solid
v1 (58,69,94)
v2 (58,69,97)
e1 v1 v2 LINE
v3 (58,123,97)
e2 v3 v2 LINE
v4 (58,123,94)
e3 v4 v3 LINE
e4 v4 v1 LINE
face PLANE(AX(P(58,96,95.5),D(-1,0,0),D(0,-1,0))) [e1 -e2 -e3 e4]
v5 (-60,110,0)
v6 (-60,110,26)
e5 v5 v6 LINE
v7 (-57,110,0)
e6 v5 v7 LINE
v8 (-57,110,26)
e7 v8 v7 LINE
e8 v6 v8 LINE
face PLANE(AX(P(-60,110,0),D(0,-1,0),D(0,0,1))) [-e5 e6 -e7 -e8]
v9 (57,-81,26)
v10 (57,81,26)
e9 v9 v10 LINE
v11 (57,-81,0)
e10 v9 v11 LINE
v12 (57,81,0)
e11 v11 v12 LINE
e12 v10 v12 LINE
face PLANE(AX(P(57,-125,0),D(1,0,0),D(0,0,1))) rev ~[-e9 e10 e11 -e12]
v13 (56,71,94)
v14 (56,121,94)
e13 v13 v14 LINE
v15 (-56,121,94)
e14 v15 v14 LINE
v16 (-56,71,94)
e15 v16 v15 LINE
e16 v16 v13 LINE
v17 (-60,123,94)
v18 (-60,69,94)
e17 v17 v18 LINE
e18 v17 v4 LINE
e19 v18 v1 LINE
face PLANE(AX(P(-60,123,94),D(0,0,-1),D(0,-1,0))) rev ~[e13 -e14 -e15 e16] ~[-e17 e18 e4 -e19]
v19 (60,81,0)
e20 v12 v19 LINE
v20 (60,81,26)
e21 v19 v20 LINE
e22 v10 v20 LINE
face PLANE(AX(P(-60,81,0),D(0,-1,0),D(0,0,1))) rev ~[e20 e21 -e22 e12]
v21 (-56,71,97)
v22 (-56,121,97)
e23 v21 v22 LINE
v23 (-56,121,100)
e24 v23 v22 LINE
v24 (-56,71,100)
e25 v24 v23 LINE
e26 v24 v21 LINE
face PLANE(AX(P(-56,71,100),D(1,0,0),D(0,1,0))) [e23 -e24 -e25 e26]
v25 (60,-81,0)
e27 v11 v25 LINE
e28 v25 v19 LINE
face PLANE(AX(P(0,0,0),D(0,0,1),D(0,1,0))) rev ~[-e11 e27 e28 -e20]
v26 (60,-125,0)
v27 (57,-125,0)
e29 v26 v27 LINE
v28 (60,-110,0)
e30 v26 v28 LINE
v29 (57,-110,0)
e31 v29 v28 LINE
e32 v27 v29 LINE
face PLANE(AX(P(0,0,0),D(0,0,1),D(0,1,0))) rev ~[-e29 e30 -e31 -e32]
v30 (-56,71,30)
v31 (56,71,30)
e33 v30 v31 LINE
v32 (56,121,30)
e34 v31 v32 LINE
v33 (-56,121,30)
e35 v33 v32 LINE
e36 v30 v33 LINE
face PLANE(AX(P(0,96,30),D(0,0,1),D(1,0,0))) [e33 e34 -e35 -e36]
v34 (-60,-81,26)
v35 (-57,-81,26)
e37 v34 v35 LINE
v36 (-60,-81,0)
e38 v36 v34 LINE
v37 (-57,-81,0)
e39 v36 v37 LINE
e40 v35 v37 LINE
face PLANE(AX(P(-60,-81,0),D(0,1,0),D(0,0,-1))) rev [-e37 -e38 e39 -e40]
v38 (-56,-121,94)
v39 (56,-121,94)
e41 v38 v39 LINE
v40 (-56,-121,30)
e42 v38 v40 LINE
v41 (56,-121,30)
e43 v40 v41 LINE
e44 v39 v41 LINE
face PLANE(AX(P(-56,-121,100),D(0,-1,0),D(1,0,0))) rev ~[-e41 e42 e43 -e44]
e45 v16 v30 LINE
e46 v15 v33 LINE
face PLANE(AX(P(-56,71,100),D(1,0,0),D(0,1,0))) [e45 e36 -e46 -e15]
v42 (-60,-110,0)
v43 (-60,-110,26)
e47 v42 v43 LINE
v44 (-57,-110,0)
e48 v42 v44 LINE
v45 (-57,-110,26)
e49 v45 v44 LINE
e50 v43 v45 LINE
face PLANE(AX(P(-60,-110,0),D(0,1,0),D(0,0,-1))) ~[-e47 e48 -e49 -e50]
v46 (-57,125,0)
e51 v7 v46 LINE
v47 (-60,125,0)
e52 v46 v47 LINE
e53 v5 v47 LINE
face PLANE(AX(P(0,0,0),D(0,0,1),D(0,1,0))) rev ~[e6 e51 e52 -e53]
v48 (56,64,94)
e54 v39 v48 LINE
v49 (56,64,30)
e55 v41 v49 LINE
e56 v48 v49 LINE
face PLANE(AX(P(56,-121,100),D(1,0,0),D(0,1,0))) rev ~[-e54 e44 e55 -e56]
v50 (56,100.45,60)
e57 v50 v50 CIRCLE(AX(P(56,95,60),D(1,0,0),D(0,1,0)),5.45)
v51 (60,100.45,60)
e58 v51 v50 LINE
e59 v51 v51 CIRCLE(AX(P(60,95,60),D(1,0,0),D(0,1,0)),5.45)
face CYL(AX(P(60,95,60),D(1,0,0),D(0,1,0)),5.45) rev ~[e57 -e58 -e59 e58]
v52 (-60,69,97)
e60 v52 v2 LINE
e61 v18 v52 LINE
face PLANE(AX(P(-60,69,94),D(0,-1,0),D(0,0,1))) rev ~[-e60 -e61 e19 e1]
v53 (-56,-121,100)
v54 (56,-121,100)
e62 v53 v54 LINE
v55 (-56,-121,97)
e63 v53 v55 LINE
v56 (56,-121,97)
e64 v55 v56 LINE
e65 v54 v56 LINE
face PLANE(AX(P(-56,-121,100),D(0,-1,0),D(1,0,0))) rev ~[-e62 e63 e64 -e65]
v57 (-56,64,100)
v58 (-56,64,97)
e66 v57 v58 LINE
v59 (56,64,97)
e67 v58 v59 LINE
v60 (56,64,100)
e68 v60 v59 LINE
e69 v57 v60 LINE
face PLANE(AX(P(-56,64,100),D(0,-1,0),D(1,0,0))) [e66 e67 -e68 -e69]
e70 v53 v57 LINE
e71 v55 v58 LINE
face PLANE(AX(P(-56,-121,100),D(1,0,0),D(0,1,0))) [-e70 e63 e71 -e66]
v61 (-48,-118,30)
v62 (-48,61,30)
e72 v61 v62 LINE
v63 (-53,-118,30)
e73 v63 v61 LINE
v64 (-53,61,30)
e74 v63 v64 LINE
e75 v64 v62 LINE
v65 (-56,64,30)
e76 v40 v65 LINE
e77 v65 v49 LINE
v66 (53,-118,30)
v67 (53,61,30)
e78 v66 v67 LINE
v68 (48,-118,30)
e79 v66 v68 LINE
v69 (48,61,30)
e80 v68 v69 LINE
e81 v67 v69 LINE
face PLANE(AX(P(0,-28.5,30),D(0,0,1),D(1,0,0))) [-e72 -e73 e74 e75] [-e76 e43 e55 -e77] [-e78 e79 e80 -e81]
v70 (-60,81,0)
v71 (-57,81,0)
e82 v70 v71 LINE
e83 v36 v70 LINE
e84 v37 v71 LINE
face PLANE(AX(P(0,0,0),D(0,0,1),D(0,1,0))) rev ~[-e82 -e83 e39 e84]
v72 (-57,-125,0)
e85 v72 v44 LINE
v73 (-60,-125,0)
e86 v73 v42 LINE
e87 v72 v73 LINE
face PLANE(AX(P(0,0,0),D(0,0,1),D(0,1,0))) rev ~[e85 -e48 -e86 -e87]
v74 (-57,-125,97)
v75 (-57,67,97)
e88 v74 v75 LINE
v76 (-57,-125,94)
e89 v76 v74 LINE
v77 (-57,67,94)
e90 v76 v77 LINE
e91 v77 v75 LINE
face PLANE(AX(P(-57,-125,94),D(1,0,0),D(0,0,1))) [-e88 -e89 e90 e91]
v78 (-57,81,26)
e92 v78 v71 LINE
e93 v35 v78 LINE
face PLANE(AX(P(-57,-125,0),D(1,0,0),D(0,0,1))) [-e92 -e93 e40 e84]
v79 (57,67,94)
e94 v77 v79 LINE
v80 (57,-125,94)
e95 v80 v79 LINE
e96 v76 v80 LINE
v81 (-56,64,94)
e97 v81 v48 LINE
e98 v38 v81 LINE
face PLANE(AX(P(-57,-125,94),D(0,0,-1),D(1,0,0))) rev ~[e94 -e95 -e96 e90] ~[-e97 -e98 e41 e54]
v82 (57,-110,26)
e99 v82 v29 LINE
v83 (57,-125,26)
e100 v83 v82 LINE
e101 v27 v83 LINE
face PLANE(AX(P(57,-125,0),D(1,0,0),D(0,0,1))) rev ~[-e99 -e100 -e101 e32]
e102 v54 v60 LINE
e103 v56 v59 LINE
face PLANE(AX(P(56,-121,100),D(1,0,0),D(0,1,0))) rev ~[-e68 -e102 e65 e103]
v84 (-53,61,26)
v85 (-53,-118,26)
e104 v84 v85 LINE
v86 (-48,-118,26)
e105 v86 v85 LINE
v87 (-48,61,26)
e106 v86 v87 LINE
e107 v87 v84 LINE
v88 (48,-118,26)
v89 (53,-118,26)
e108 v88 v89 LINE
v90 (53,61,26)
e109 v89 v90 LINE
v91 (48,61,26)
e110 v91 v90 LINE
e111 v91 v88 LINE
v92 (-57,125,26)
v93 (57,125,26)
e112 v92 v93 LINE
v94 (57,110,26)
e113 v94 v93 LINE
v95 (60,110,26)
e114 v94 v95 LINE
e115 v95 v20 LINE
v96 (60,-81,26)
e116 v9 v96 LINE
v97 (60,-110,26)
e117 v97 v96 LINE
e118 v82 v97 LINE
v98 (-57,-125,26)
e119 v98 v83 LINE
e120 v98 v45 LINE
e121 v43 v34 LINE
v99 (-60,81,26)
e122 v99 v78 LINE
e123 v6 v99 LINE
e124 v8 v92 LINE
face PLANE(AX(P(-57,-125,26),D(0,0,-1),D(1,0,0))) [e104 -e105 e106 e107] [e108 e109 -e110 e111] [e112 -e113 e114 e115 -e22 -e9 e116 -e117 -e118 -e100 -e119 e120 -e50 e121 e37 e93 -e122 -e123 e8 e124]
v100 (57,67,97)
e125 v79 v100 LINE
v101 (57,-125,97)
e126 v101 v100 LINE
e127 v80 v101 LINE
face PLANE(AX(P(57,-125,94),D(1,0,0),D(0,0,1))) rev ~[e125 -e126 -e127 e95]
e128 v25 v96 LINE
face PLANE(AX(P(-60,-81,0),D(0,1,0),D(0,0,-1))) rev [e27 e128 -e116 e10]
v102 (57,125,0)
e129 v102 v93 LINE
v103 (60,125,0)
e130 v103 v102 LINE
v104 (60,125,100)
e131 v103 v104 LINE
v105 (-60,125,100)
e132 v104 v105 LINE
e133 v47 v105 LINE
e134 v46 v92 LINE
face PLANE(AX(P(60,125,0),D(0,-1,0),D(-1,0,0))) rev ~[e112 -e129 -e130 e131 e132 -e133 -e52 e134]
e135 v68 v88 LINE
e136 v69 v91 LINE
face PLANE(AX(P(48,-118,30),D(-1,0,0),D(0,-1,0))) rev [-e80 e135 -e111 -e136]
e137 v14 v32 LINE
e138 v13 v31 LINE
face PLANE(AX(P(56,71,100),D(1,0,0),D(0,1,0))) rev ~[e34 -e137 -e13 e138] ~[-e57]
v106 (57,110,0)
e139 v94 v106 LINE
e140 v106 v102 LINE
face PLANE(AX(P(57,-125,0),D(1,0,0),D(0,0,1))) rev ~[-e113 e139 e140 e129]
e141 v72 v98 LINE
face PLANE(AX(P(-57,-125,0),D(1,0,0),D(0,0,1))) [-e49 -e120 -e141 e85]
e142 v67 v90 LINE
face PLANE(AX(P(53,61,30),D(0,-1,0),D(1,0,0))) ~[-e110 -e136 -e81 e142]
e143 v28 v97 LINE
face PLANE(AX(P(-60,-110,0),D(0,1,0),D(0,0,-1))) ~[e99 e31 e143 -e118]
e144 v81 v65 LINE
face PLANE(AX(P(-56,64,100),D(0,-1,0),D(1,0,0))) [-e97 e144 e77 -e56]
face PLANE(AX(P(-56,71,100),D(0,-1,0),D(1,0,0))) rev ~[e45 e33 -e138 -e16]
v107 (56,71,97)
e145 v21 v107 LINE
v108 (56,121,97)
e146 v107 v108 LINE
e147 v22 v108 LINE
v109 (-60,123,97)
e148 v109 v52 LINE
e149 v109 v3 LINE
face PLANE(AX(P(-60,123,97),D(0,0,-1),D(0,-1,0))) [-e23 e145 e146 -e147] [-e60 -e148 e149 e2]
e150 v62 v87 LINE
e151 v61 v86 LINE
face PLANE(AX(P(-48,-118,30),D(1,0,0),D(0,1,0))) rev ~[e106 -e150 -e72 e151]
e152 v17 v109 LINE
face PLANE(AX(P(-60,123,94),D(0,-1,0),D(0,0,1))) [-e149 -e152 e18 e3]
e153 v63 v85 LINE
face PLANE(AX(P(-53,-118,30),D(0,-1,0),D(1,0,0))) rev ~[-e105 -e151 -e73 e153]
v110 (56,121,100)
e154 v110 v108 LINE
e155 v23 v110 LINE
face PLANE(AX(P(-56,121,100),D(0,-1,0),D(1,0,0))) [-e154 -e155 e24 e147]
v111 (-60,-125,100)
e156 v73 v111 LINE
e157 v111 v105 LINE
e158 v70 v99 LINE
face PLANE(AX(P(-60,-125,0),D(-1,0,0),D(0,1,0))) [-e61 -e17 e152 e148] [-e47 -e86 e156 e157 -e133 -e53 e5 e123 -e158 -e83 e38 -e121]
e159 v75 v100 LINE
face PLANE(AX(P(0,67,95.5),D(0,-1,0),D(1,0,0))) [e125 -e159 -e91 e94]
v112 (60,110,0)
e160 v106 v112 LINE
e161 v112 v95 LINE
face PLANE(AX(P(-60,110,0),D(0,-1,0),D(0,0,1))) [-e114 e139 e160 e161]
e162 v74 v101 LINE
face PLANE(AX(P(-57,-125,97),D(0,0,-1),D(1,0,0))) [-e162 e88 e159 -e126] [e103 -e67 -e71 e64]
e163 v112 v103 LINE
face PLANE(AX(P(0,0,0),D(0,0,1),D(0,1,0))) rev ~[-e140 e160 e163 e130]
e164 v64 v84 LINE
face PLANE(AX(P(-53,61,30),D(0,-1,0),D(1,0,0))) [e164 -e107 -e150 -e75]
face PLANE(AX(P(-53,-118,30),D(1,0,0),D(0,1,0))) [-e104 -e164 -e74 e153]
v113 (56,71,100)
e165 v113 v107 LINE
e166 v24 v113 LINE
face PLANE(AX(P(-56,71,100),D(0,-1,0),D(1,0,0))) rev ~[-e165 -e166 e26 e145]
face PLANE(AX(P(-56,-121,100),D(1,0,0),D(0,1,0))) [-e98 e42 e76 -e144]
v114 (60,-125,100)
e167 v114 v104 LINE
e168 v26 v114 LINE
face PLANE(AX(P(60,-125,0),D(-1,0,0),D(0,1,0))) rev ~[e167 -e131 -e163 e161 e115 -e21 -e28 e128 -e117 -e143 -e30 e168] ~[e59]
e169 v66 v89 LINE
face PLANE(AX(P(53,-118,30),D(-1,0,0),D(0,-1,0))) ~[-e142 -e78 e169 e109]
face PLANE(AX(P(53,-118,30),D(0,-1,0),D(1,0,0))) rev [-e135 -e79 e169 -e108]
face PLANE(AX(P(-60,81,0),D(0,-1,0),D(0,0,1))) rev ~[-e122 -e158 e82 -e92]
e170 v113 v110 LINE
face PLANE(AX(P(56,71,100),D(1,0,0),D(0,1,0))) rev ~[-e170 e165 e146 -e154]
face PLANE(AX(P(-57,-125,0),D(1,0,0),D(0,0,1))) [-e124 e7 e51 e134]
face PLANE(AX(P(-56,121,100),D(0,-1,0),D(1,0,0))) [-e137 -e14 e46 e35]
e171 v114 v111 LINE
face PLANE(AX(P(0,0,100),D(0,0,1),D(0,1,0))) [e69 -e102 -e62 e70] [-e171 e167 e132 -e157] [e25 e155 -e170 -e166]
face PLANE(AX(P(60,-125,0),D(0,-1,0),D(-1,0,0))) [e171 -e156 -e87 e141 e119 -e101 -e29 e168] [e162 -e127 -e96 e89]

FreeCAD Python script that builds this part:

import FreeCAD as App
import Part
import Sketcher
Q = App.Units.Quantity


def add_polygon(sketch, points):
    """Adds a closed chain of lines whose ends are joined by coincident constraints."""
    first, n = sketch.GeometryCount, len(points)
    for a, b in zip(points, points[1:] + points[:1]):
        sketch.addGeometry(Part.LineSegment(App.Vector(*a, 0), App.Vector(*b, 0)), False)
    for i in range(n):
        sketch.addConstraint(Sketcher.Constraint("Coincident", first + i, 2, first + (i + 1) % n, 1))

doc = App.newDocument("Part")
body = doc.addObject("PartDesign::Body", "Body")

# Sketch on XY plane
sketch1 = body.newObject("Sketcher::SketchObject", "Sketch")
sketch1.AttachmentSupport = (doc.getObject("XY_Plane"), [""])
sketch1.MapMode = "FlatFace"
add_polygon(sketch1, [(-60, -125), (60, -125), (60, 125), (-60, 125)])  # lines 0-3
sketch1.addConstraint([
    Sketcher.Constraint("Horizontal", 0),
    Sketcher.Constraint("Vertical", 1),
    Sketcher.Constraint("Horizontal", 2),
    Sketcher.Constraint("Vertical", 3),
    Sketcher.Constraint("Symmetric", 0, 2, 2, 2, -1, 1),
    Sketcher.Constraint("DistanceX", 0, 1, 0, 2, Q("120 mm")),
    Sketcher.Constraint("DistanceY", 1, 1, 1, 2, Q("250 mm")),
])
pad1 = body.newObject("PartDesign::Pad", "Pad")
pad1.Profile = sketch1
pad1.Length = 100

# Sketch on XY plane
sketch2 = body.newObject("Sketcher::SketchObject", "Sketch001")
sketch2.AttachmentSupport = (doc.getObject("XY_Plane"), [""])
sketch2.MapMode = "FlatFace"
sketch2.AttachmentOffset = App.Placement(App.Vector(0, 0, 100), App.Rotation())
add_polygon(sketch2, [(-56, 121), (-56, 71), (56, 71), (56, 121)])  # lines 0-3
sketch2.addConstraint([
    Sketcher.Constraint("Vertical", 0),
    Sketcher.Constraint("Horizontal", 1),
    Sketcher.Constraint("Vertical", 2),
    Sketcher.Constraint("Horizontal", 3),
    Sketcher.Constraint("DistanceX", 1, 1, 1, 2, Q("112 mm")),
    Sketcher.Constraint("DistanceY", 0, 2, 0, 1, Q("50 mm")),
    Sketcher.Constraint("DistanceX", 0, 2, -1, 1, Q("56 mm")),
    Sketcher.Constraint("DistanceY", -1, 1, 0, 2, Q("71 mm")),
])
pocket1 = body.newObject("PartDesign::Pocket", "Pocket")
pocket1.Profile = sketch2
pocket1.Length = 70

# Sketch on YZ plane
sketch3 = body.newObject("Sketcher::SketchObject", "Sketch002")
sketch3.AttachmentSupport = (doc.getObject("YZ_Plane"), [""])
sketch3.MapMode = "FlatFace"
sketch3.AttachmentOffset = App.Placement(App.Vector(0, 0, -60), App.Rotation())
add_polygon(sketch3, [(123, 97), (123, 94), (69, 94), (69, 97)])  # lines 0-3
sketch3.addConstraint([
    Sketcher.Constraint("Vertical", 0),
    Sketcher.Constraint("Horizontal", 1),
    Sketcher.Constraint("Vertical", 2),
    Sketcher.Constraint("Horizontal", 3),
    Sketcher.Constraint("DistanceX", 1, 2, 1, 1, Q("54 mm")),
    Sketcher.Constraint("DistanceY", 0, 2, 0, 1, Q("3 mm")),
    Sketcher.Constraint("DistanceX", -1, 1, 0, 2, Q("123 mm")),
    Sketcher.Constraint("DistanceY", -1, 1, 0, 2, Q("94 mm")),
])
pocket2 = body.newObject("PartDesign::Pocket", "Pocket001")
pocket2.Profile = sketch3
pocket2.Length = 118
pocket2.Reversed = True

# Sketch on XY plane
sketch4 = body.newObject("Sketcher::SketchObject", "Sketch003")
sketch4.AttachmentSupport = (doc.getObject("XY_Plane"), [""])
sketch4.MapMode = "FlatFace"
sketch4.AttachmentOffset = App.Placement(App.Vector(0, 0, 100), App.Rotation())
add_polygon(sketch4, [(-56, 64), (-56, -121), (56, -121), (56, 64)])  # lines 0-3
sketch4.addConstraint([
    Sketcher.Constraint("Vertical", 0),
    Sketcher.Constraint("Horizontal", 1),
    Sketcher.Constraint("Vertical", 2),
    Sketcher.Constraint("Horizontal", 3),
    Sketcher.Constraint("DistanceX", 1, 1, 1, 2, Q("112 mm")),
    Sketcher.Constraint("DistanceY", 0, 2, 0, 1, Q("185 mm")),
    Sketcher.Constraint("DistanceX", 0, 2, -1, 1, Q("56 mm")),
    Sketcher.Constraint("DistanceY", 0, 2, -1, 1, Q("121 mm")),
])
pocket3 = body.newObject("PartDesign::Pocket", "Pocket002")
pocket3.Profile = sketch4
pocket3.Length = 70

# Sketch on XZ plane
sketch5 = body.newObject("Sketcher::SketchObject", "Sketch004")
sketch5.AttachmentSupport = (doc.getObject("XZ_Plane"), [""])
sketch5.MapMode = "FlatFace"
sketch5.AttachmentOffset = App.Placement(App.Vector(0, 0, 125), App.Rotation())
add_polygon(sketch5, [(-57, 97), (-57, 94), (57, 94), (57, 97)])  # lines 0-3
sketch5.addConstraint([
    Sketcher.Constraint("Vertical", 0),
    Sketcher.Constraint("Horizontal", 1),
    Sketcher.Constraint("Vertical", 2),
    Sketcher.Constraint("Horizontal", 3),
    Sketcher.Constraint("DistanceX", 1, 1, 1, 2, Q("114 mm")),
    Sketcher.Constraint("DistanceY", 0, 2, 0, 1, Q("3 mm")),
    Sketcher.Constraint("DistanceX", 0, 2, -1, 1, Q("57 mm")),
    Sketcher.Constraint("DistanceY", -1, 1, 0, 2, Q("94 mm")),
])
pocket4 = body.newObject("PartDesign::Pocket", "Pocket003")
pocket4.Profile = sketch5
pocket4.Length = 192

# Sketch on XZ plane
sketch6 = body.newObject("Sketcher::SketchObject", "Sketch005")
sketch6.AttachmentSupport = (doc.getObject("XZ_Plane"), [""])
sketch6.MapMode = "FlatFace"
sketch6.AttachmentOffset = App.Placement(App.Vector(0, 0, 125), App.Rotation())
add_polygon(sketch6, [(-57, 26), (-57, 0), (57, 0), (57, 26)])  # lines 0-3
sketch6.addConstraint([
    Sketcher.Constraint("Vertical", 0),
    Sketcher.Constraint("Horizontal", 1),
    Sketcher.Constraint("Vertical", 2),
    Sketcher.Constraint("Horizontal", 3),
    Sketcher.Constraint("Symmetric", 0, 2, 1, 2, -1, 1),
    Sketcher.Constraint("DistanceX", 1, 1, 1, 2, Q("114 mm")),
    Sketcher.Constraint("DistanceY", 0, 2, 0, 1, Q("26 mm")),
])
pocket5 = body.newObject("PartDesign::Pocket", "Pocket004")
pocket5.Profile = sketch6
pocket5.Length = 500

# Sketch on XY plane
sketch7 = body.newObject("Sketcher::SketchObject", "Sketch006")
sketch7.AttachmentSupport = (doc.getObject("XY_Plane"), [""])
sketch7.MapMode = "FlatFace"
sketch7.AttachmentOffset = App.Placement(App.Vector(0, 0, 30), App.Rotation())
add_polygon(sketch7, [(-53, 61), (-53, -118), (-48, -118), (-48, 61)])  # lines 0-3
sketch7.addConstraint([
    Sketcher.Constraint("Vertical", 0),
    Sketcher.Constraint("Horizontal", 1),
    Sketcher.Constraint("Vertical", 2),
    Sketcher.Constraint("Horizontal", 3),
    Sketcher.Constraint("DistanceX", 1, 1, 1, 2, Q("5 mm")),
    Sketcher.Constraint("DistanceY", 0, 2, 0, 1, Q("179 mm")),
    Sketcher.Constraint("DistanceX", 0, 2, -1, 1, Q("53 mm")),
    Sketcher.Constraint("DistanceY", 0, 2, -1, 1, Q("118 mm")),
])
pocket6 = body.newObject("PartDesign::Pocket", "Pocket005")
pocket6.Profile = sketch7
pocket6.Length = 500
doc.recompute()

mirrored = body.newObject("PartDesign::Mirrored", "Mirrored")
mirrored.Originals = [pocket6]
mirrored.MirrorPlane = (doc.getObject("YZ_Plane"), [""])
body.Tip = mirrored

# Sketch on YZ plane
sketch8 = body.newObject("Sketcher::SketchObject", "Sketch007")
sketch8.AttachmentSupport = (doc.getObject("YZ_Plane"), [""])
sketch8.MapMode = "FlatFace"
sketch8.AttachmentOffset = App.Placement(App.Vector(0, 0, -60), App.Rotation())
add_polygon(sketch8, [(110, 26), (110, 0), (81, 0), (81, 26)])  # lines 0-3
sketch8.addConstraint([
    Sketcher.Constraint("Vertical", 0),
    Sketcher.Constraint("Horizontal", 1),
    Sketcher.Constraint("Vertical", 2),
    Sketcher.Constraint("Horizontal", 3),
    Sketcher.Constraint("PointOnObject", 0, 2, -1),
    Sketcher.Constraint("DistanceX", 1, 2, 1, 1, Q("29 mm")),
    Sketcher.Constraint("DistanceY", 0, 2, 0, 1, Q("26 mm")),
    Sketcher.Constraint("DistanceX", -1, 1, 0, 2, Q("110 mm")),
])
pocket7 = body.newObject("PartDesign::Pocket", "Pocket006")
pocket7.Profile = sketch8
pocket7.Length = 500
pocket7.Reversed = True
doc.recompute()

mirrored2 = body.newObject("PartDesign::Mirrored", "Mirrored001")
mirrored2.Originals = [pocket7]
mirrored2.MirrorPlane = (doc.getObject("XZ_Plane"), [""])
body.Tip = mirrored2

# Sketch on YZ plane
sketch9 = body.newObject("Sketcher::SketchObject", "Sketch008")
sketch9.AttachmentSupport = (doc.getObject("YZ_Plane"), [""])
sketch9.MapMode = "FlatFace"
sketch9.AttachmentOffset = App.Placement(App.Vector(0, 0, 60), App.Rotation())
sketch9.addGeometry(Part.Circle(App.Vector(95, 60, 0), App.Vector(0, 0, 1), 5), False)
sketch9.addConstraint([
    Sketcher.Constraint("Diameter", 0, Q("10.9 mm")),
    Sketcher.Constraint("DistanceX", -1, 1, 0, 3, Q("95 mm")),
    Sketcher.Constraint("DistanceY", -1, 1, 0, 3, Q("60 mm")),
])
pocket8 = body.newObject("PartDesign::Pocket", "Pocket007")
pocket8.Profile = sketch9
pocket8.Length = 10

doc.recompute()
